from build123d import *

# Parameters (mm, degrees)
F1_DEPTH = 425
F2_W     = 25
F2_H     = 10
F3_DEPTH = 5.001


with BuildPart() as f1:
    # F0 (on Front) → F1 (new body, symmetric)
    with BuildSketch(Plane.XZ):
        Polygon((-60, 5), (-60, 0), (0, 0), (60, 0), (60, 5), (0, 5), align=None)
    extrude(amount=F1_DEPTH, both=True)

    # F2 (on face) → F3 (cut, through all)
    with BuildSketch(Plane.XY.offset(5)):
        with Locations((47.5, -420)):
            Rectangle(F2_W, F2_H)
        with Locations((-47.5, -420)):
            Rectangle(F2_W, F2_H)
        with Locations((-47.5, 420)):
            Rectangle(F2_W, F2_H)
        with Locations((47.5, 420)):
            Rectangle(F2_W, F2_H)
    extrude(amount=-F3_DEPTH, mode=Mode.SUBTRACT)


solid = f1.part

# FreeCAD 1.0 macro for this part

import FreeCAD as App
import Part
import Sketcher

V = App.Vector
Q = App.Units.Quantity


def add_polygon(sketch, points):
    """Adds a closed chain of lines whose ends are joined by coincident constraints."""
    first, n = sketch.GeometryCount, len(points)
    for a, b in zip(points, points[1:] + points[:1]):
        sketch.addGeometry(Part.LineSegment(App.Vector(*a, 0), App.Vector(*b, 0)), False)
    for i in range(n):
        sketch.addConstraint(Sketcher.Constraint("Coincident", first + i, 2, first + (i + 1) % n, 1))

doc = App.newDocument("Part")
body = doc.addObject("PartDesign::Body", "Body")

# Sketch on XZ plane
sketch1 = doc.addObject("Sketcher::SketchObject", "Sketch")
body.addObject(sketch1)
sketch1.AttachmentSupport = (doc.XZ_Plane, [""])
sketch1.MapMode = "FlatFace"
add_polygon(sketch1, [(-60, 5), (-60, 0), (60, 0), (60, 5)])  # lines 0-3
sketch1.addConstraint(Sketcher.Constraint("Vertical", 0))
sketch1.addConstraint(Sketcher.Constraint("Horizontal", 1))
sketch1.addConstraint(Sketcher.Constraint("Vertical", 2))
sketch1.addConstraint(Sketcher.Constraint("Horizontal", 3))
sketch1.addConstraint(Sketcher.Constraint("Symmetric", 0, 2, 1, 2, -1, 1))
sketch1.addConstraint(Sketcher.Constraint("DistanceX", 1, 1, 1, 2, Q("120 mm")))
sketch1.addConstraint(Sketcher.Constraint("DistanceY", 0, 2, 0, 1, Q("5 mm")))
pad1 = doc.addObject("PartDesign::Pad", "Pad")
body.addObject(pad1)
pad1.Profile = sketch1
pad1.Length = 850
pad1.Midplane = True

# Sketch on XY plane
sketch2 = doc.addObject("Sketcher::SketchObject", "Sketch001")
body.addObject(sketch2)
sketch2.AttachmentSupport = (doc.XY_Plane, [""])
sketch2.MapMode = "FlatFace"
sketch2.AttachmentOffset = App.Placement(V(0, 0, 5), App.Rotation())
add_polygon(sketch2, [(35, -415), (35, -425), (60, -425), (60, -415)])  # lines 0-3
add_polygon(sketch2, [(-60, -415), (-60, -425), (-35, -425), (-35, -415)])  # lines 4-7
add_polygon(sketch2, [(-60, 425), (-60, 415), (-35, 415), (-35, 425)])  # lines 8-11
add_polygon(sketch2, [(35, 425), (35, 415), (60, 415), (60, 425)])  # lines 12-15
sketch2.addConstraint(Sketcher.Constraint("Vertical", 0))
sketch2.addConstraint(Sketcher.Constraint("Horizontal", 1))
sketch2.addConstraint(Sketcher.Constraint("Vertical", 2))
sketch2.addConstraint(Sketcher.Constraint("Horizontal", 3))
sketch2.addConstraint(Sketcher.Constraint("Vertical", 4))
sketch2.addConstraint(Sketcher.Constraint("Horizontal", 5))
sketch2.addConstraint(Sketcher.Constraint("Vertical", 6))
sketch2.addConstraint(Sketcher.Constraint("Horizontal", 7))
sketch2.addConstraint(Sketcher.Constraint("Vertical", 8))
sketch2.addConstraint(Sketcher.Constraint("Horizontal", 9))
sketch2.addConstraint(Sketcher.Constraint("Vertical", 10))
sketch2.addConstraint(Sketcher.Constraint("Horizontal", 11))
sketch2.addConstraint(Sketcher.Constraint("Vertical", 12))
sketch2.addConstraint(Sketcher.Constraint("Horizontal", 13))
sketch2.addConstraint(Sketcher.Constraint("Vertical", 14))
sketch2.addConstraint(Sketcher.Constraint("Horizontal", 15))
sketch2.addConstraint(Sketcher.Constraint("Symmetric", 2, 2, 8, 2, -1, 1))
sketch2.addConstraint(Sketcher.Constraint("Symmetric", 0, 2, 10, 2, -1, 1))
sketch2.addConstraint(Sketcher.Constraint("Symmetric", 6, 2, 12, 2, -1, 1))
sketch2.addConstraint(Sketcher.Constraint("Symmetric", 4, 2, 14, 2, -1, 1))
sketch2.addConstraint(Sketcher.Constraint("Symmetric", 1, 2, 4, 2, -2))
sketch2.addConstraint(Sketcher.Constraint("Symmetric", 3, 2, 6, 2, -2))
sketch2.addConstraint(Sketcher.Constraint("DistanceX", 1, 1, 1, 2, Q("25 mm")))
sketch2.addConstraint(Sketcher.Constraint("DistanceY", 0, 2, 0, 1, Q("10 mm")))
sketch2.addConstraint(Sketcher.Constraint("DistanceX", -1, 1, 0, 2, Q("35 mm")))
sketch2.addConstraint(Sketcher.Constraint("DistanceY", 0, 2, -1, 1, Q("425 mm")))
pocket1 = doc.addObject("PartDesign::Pocket", "Pocket")
body.addObject(pocket1)
pocket1.Profile = sketch2
pocket1.Type = "ThroughAll"

doc.recompute()
